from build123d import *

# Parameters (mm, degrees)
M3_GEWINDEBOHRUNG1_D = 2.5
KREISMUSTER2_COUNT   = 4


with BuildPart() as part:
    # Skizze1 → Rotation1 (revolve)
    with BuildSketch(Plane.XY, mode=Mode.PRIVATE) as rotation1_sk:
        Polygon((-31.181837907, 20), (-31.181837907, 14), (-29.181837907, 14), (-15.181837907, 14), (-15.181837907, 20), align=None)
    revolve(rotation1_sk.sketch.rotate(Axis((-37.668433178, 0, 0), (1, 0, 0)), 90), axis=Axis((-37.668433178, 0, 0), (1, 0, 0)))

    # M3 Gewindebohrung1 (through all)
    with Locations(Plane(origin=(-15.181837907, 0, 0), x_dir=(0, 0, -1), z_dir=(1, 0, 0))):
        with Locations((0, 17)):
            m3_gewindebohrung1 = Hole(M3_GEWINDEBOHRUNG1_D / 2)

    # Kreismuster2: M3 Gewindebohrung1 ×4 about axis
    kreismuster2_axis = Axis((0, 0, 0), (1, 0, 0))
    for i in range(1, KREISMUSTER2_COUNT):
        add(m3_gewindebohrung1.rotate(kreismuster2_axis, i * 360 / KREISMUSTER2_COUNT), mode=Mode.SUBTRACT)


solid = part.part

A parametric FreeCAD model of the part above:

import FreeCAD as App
import Part
import Sketcher
from FreeCAD import Vector


def add_polygon(sketch, points):
    """Adds a closed chain of lines whose ends are joined by coincident constraints."""
    first, n = sketch.GeometryCount, len(points)
    for a, b in zip(points, points[1:] + points[:1]):
        sketch.addGeometry(Part.LineSegment(App.Vector(*a, 0), App.Vector(*b, 0)), False)
    for i in range(n):
        sketch.addConstraint(Sketcher.Constraint("Coincident", first + i, 2, first + (i + 1) % n, 1))

doc = App.newDocument("Part")
body = doc.addObject("PartDesign::Body", "Body")

# Sketch on XY plane
sketch1 = body.newObject("Sketcher::SketchObject", "Sketch")
sketch1.AttachmentSupport = (doc.getObject("XY_Plane"), [""])
sketch1.MapMode = "FlatFace"
add_polygon(sketch1, [(-31.181838, 20), (-31.181838, 14), (-15.181838, 14), (-15.181838, 20)])  # lines 0-3
sketch1.addConstraint([
    Sketcher.Constraint("Vertical", 0),
    Sketcher.Constraint("Horizontal", 1),
    Sketcher.Constraint("Vertical", 2),
    Sketcher.Constraint("Horizontal", 3),
    Sketcher.Constraint("DistanceX", 1, 1, 1, 2, 16.0),
    Sketcher.Constraint("DistanceY", 0, 2, 0, 1, 6.0),
    Sketcher.Constraint("DistanceY", -1, 1, 0, 2, 14.0),
    Sketcher.Constraint("DistanceX", 0, 2, -1, 1, 31.181838),
])
revolution = body.newObject("PartDesign::Revolution", "Revolution")
revolution.Profile = sketch1
revolution.ReferenceAxis = (sketch1, ["H_Axis"])
revolution.Angle = 360

# Sketch on YZ plane
sketch2 = body.newObject("Sketcher::SketchObject", "Sketch001")
sketch2.AttachmentSupport = (doc.getObject("YZ_Plane"), [""])
sketch2.MapMode = "FlatFace"
sketch2.AttachmentOffset = App.Placement(Vector(0, 0, -15.181838), App.Rotation())
sketch2.addGeometry(Part.Circle(Vector(17, 0, 0), Vector(0, 0, 1), 1.25), False)
sketch2.addConstraint([
    Sketcher.Constraint("PointOnObject", 0, 3, -1),
    Sketcher.Constraint("Diameter", 0, 2.5),
    Sketcher.Constraint("DistanceX", -1, 1, 0, 3, 17.0),
])
doc.recompute()
hole = body.newObject("PartDesign::Hole", "Hole")
hole.Profile = sketch2
hole.ThreadType = "None"
hole.Diameter = 2.5
hole.DepthType = "ThroughAll"
doc.recompute()

polarpattern = body.newObject("PartDesign::PolarPattern", "PolarPattern")
polarpattern.Originals = [hole]
polarpattern.Axis = (doc.getObject("X_Axis"), [""])
polarpattern.Angle = 360
polarpattern.Occurrences = 4
body.Tip = polarpattern

doc.recompute()
